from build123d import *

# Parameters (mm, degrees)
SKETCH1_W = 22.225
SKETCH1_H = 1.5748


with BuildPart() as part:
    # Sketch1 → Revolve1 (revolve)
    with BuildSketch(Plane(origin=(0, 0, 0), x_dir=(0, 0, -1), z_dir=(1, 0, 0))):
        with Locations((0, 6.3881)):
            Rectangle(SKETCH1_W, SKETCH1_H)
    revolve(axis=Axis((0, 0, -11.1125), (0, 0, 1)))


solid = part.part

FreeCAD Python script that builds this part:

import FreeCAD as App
import Part
import Sketcher

V = App.Vector
Q = App.Units.Quantity


def add_polygon(sketch, points):
    """Adds a closed chain of lines whose ends are joined by coincident constraints."""
    first, n = sketch.GeometryCount, len(points)
    for a, b in zip(points, points[1:] + points[:1]):
        sketch.addGeometry(Part.LineSegment(App.Vector(*a, 0), App.Vector(*b, 0)), False)
    for i in range(n):
        sketch.addConstraint(Sketcher.Constraint("Coincident", first + i, 2, first + (i + 1) % n, 1))

doc = App.newDocument("Part")
body = doc.addObject("PartDesign::Body", "Body")

sketch1 = body.newObject("Sketcher::SketchObject", "Sketch")
sketch1.AttachmentSupport = (doc.getObject("YZ_Plane"), [""])
sketch1.MapMode = "FlatFace"
add_polygon(sketch1, [(7.2, 11.1), (5.6, 11.1), (5.6, -11.1), (7.2, -11.1)])
sketch1.addConstraint(Sketcher.Constraint("Horizontal", 0))
sketch1.addConstraint(Sketcher.Constraint("Vertical", 1))
sketch1.addConstraint(Sketcher.Constraint("Horizontal", 2))
sketch1.addConstraint(Sketcher.Constraint("Vertical", 3))
sketch1.addConstraint(Sketcher.Constraint("DistanceX", 0, 2, 0, 1, Q("0.062 in")))
sketch1.addConstraint(Sketcher.Constraint("DistanceY", 1, 2, 1, 1, Q("0.875 in")))
sketch1.addConstraint(Sketcher.Constraint("DistanceY", -1, 1, 0, 2, Q("0.4375 in")))
sketch1.addConstraint(Sketcher.Constraint("DistanceX", -1, 1, 0, 2, Q("0.2205 in")))
revolution = body.newObject("PartDesign::Revolution", "Revolution")
revolution.Profile = sketch1
revolution.ReferenceAxis = (sketch1, ["V_Axis"])
revolution.Angle = 360

doc.recompute()
